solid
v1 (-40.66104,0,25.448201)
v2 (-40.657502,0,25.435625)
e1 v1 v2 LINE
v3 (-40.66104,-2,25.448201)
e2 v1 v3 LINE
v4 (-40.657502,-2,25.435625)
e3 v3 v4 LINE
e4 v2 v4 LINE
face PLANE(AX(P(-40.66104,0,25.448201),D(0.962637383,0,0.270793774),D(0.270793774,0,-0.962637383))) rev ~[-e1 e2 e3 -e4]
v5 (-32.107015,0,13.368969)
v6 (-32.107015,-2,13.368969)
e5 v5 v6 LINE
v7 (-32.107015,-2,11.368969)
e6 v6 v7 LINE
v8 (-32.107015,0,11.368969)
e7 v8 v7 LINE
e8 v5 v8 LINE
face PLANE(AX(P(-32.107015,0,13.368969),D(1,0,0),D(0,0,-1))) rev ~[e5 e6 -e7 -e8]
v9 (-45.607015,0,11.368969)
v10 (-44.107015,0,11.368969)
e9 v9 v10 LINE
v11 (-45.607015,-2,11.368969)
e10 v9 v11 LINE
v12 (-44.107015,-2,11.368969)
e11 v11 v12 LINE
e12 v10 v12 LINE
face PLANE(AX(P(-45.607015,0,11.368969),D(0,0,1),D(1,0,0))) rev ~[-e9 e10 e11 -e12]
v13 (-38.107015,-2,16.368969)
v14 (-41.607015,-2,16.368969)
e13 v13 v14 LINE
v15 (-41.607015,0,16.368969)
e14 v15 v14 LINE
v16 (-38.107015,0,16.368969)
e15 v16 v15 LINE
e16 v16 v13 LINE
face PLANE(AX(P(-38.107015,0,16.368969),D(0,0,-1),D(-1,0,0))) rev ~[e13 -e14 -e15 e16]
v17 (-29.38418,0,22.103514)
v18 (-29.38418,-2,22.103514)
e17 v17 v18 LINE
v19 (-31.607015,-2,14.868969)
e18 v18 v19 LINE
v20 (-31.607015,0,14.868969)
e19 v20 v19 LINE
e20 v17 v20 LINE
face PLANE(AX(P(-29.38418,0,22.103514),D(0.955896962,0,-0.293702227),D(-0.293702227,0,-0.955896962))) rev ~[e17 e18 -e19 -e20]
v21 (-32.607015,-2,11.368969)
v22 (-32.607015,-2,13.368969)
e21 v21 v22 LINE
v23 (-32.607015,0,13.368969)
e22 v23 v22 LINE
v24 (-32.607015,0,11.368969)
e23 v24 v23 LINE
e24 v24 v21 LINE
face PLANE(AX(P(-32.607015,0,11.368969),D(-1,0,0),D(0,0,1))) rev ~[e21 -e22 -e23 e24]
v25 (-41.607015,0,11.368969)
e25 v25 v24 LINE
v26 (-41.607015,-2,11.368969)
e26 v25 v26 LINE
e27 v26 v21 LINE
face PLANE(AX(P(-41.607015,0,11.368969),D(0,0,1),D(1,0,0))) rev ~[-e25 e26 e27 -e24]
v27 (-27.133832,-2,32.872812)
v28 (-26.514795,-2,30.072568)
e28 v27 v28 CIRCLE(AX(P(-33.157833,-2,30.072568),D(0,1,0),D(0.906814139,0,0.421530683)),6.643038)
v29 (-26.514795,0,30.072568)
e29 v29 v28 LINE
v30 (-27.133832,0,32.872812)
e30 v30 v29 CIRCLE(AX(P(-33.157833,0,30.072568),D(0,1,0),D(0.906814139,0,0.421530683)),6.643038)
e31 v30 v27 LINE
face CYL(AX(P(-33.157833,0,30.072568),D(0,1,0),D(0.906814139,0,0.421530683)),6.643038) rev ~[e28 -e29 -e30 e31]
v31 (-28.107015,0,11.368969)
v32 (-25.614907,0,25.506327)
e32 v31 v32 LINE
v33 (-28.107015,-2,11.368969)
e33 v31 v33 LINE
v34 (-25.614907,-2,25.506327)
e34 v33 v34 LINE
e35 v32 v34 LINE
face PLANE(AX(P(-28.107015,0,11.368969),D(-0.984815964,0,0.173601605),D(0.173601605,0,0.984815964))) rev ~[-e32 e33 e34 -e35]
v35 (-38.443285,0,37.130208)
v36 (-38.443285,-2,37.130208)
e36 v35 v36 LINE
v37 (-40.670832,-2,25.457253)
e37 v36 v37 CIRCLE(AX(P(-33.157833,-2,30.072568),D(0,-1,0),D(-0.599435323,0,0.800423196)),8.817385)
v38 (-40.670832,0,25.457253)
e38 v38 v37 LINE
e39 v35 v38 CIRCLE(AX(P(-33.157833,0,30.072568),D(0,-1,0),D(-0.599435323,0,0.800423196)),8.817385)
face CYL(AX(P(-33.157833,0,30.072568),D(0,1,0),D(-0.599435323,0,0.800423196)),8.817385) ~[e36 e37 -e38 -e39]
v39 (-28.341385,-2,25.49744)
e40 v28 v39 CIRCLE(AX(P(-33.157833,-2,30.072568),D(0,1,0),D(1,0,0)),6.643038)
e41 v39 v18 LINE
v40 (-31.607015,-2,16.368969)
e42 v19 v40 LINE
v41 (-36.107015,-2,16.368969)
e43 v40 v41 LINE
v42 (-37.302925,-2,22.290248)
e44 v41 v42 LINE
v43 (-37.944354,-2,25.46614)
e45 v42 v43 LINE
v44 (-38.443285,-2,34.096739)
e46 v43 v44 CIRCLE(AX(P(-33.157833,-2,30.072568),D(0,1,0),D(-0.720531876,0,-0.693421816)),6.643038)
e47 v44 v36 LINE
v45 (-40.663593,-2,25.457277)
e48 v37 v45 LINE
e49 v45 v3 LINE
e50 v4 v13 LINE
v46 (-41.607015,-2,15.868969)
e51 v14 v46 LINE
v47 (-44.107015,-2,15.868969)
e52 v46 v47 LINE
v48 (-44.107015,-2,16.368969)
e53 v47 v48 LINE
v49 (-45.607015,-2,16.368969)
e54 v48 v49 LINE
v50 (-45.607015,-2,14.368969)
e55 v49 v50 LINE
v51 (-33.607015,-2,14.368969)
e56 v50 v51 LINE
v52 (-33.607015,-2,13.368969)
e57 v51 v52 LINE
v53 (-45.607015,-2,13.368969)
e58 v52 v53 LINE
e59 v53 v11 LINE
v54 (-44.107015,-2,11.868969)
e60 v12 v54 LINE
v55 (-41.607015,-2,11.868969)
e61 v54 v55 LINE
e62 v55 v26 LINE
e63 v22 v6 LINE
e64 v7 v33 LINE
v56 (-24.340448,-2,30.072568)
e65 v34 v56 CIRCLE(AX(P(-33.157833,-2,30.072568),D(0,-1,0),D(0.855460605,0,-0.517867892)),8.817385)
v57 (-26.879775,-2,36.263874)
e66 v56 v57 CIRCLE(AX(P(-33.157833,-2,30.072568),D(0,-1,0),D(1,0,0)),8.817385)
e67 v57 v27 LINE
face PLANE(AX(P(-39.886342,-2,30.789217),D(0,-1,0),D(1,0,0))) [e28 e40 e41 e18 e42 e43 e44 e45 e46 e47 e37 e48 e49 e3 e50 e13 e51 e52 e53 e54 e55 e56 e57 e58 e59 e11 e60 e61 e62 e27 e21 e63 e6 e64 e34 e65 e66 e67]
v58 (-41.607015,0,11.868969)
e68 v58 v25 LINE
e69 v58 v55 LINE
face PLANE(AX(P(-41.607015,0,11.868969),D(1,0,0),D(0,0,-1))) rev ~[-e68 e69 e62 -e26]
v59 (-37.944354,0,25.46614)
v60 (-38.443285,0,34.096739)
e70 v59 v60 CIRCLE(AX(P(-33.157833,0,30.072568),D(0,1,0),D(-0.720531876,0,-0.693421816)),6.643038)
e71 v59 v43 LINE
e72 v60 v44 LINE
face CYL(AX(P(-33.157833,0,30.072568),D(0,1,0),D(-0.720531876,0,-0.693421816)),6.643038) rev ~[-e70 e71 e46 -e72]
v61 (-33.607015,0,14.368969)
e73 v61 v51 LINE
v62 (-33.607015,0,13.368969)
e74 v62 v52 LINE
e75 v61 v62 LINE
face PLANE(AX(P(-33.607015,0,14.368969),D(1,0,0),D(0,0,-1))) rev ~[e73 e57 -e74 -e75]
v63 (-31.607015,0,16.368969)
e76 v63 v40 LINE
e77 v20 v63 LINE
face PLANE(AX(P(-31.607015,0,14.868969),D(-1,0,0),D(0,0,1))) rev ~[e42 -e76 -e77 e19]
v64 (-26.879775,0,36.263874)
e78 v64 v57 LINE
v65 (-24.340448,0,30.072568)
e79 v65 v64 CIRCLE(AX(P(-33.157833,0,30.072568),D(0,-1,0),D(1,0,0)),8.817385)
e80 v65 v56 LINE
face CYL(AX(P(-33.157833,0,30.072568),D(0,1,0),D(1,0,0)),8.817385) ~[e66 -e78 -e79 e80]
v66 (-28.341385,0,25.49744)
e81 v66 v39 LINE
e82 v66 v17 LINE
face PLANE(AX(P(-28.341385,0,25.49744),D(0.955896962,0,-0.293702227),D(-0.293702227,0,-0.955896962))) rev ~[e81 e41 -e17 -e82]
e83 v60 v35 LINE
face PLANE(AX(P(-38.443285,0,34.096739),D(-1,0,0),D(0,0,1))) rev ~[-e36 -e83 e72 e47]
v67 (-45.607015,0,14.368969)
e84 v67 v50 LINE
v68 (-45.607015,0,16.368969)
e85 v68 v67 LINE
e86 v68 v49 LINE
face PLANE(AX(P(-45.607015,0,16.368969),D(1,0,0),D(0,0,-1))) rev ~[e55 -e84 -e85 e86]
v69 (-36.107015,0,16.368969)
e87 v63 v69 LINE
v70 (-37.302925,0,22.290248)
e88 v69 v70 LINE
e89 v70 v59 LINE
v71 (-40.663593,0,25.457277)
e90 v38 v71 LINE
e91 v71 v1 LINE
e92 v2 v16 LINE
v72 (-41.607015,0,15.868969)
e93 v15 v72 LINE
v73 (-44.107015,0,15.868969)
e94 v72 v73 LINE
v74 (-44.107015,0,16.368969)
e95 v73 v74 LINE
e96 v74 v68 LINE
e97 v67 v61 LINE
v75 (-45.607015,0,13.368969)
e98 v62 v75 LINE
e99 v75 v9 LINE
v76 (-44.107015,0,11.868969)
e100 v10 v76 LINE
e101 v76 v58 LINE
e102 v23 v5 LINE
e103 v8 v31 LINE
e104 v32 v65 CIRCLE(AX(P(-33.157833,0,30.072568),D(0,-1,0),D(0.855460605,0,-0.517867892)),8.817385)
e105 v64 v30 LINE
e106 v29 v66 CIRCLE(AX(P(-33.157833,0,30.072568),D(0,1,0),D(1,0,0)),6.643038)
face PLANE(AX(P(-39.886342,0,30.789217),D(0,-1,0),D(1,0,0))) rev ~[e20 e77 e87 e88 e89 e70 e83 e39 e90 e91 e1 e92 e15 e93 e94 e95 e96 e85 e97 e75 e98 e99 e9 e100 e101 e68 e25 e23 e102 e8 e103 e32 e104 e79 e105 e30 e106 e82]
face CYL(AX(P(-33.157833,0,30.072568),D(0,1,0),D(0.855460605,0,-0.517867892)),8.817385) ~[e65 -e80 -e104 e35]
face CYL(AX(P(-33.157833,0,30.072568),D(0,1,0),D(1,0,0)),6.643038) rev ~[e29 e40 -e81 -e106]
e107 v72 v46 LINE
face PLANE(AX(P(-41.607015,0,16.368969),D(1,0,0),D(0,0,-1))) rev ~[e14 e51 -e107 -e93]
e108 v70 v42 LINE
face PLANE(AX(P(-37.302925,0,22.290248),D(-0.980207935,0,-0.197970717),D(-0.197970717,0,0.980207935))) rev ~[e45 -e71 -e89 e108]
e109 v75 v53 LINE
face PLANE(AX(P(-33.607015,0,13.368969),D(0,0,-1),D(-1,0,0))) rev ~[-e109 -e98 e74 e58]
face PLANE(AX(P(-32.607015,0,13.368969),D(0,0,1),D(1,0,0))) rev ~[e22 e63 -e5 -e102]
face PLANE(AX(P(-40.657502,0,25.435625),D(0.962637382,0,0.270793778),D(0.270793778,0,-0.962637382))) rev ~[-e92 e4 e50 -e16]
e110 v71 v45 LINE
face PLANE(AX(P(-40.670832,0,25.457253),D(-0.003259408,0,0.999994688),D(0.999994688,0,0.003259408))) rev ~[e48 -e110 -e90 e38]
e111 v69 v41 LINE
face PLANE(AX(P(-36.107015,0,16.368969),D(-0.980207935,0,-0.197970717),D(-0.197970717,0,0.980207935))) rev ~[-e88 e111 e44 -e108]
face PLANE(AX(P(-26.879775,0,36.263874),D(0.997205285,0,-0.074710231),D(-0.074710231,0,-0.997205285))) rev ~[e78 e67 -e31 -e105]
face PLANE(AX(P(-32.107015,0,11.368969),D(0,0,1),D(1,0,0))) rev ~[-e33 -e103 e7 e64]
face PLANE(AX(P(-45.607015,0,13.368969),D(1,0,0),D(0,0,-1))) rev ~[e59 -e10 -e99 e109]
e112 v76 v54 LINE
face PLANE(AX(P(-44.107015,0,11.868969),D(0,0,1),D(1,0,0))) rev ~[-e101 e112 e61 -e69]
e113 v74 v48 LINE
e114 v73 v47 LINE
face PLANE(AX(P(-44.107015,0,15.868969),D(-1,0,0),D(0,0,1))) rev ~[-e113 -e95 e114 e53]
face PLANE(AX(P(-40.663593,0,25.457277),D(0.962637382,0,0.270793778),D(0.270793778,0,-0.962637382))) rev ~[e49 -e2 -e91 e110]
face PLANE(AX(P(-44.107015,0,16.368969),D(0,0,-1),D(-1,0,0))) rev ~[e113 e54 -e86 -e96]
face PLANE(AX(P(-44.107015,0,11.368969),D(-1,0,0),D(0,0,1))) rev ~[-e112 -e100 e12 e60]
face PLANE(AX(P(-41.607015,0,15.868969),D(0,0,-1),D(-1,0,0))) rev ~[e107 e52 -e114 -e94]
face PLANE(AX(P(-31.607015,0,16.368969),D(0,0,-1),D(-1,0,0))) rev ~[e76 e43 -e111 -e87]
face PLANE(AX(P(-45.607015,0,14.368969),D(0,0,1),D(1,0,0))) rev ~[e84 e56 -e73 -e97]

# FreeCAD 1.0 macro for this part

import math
import FreeCAD as App
import Part
import Sketcher
from FreeCAD import Vector
Q = App.Units.Quantity

doc = App.newDocument("Part")
body = doc.addObject("PartDesign::Body", "Body")

sketch1 = body.newObject("Sketcher::SketchObject", "Sketch")
sketch1.AttachmentSupport = (doc.getObject("XZ_Plane"), [""])
sketch1.MapMode = "FlatFace"
sketch1.addGeometry(Part.ArcOfCircle(Part.Circle(Vector(-33.157833, 30.072568, 0), Vector(0, 0, 1), 8.817385), math.radians(126.829466), math.radians(211.562844)), False)
sketch1.addGeometry(Part.LineSegment(Vector(-40.670832, 25.457253, 0), Vector(-40.663593, 25.457277, 0)), False)
sketch1.addGeometry(Part.LineSegment(Vector(-40.663593, 25.457277, 0), Vector(-40.66104, 25.448201, 0)), False)
sketch1.addGeometry(Part.LineSegment(Vector(-40.66104, 25.448201, 0), Vector(-40.657502, 25.435625, 0)), False)
sketch1.addGeometry(Part.LineSegment(Vector(-40.657502, 25.435625, 0), Vector(-38.107015, 16.368969, 0)), False)
sketch1.addGeometry(Part.LineSegment(Vector(-38.107015, 16.368969, 0), Vector(-41.607015, 16.368969, 0)), False)
sketch1.addGeometry(Part.LineSegment(Vector(-41.607015, 16.368969, 0), Vector(-41.607015, 15.868969, 0)), False)
sketch1.addGeometry(Part.LineSegment(Vector(-41.607015, 15.868969, 0), Vector(-44.107015, 15.868969, 0)), False)
sketch1.addGeometry(Part.LineSegment(Vector(-44.107015, 15.868969, 0), Vector(-44.107015, 16.368969, 0)), False)
sketch1.addGeometry(Part.LineSegment(Vector(-44.107015, 16.368969, 0), Vector(-45.607015, 16.368969, 0)), False)
sketch1.addGeometry(Part.LineSegment(Vector(-45.607015, 16.368969, 0), Vector(-45.607015, 14.368969, 0)), False)
sketch1.addGeometry(Part.LineSegment(Vector(-45.607015, 14.368969, 0), Vector(-33.607015, 14.368969, 0)), False)
sketch1.addGeometry(Part.LineSegment(Vector(-33.607015, 14.368969, 0), Vector(-33.607015, 13.368969, 0)), False)
sketch1.addGeometry(Part.LineSegment(Vector(-33.607015, 13.368969, 0), Vector(-45.607015, 13.368969, 0)), False)
sketch1.addGeometry(Part.LineSegment(Vector(-45.607015, 13.368969, 0), Vector(-45.607015, 11.368969, 0)), False)
sketch1.addGeometry(Part.LineSegment(Vector(-45.607015, 11.368969, 0), Vector(-44.107015, 11.368969, 0)), False)
sketch1.addGeometry(Part.LineSegment(Vector(-44.107015, 11.368969, 0), Vector(-44.107015, 11.868969, 0)), False)
sketch1.addGeometry(Part.LineSegment(Vector(-44.107015, 11.868969, 0), Vector(-41.607015, 11.868969, 0)), False)
sketch1.addGeometry(Part.LineSegment(Vector(-41.607015, 11.868969, 0), Vector(-41.607015, 11.368969, 0)), False)
sketch1.addGeometry(Part.LineSegment(Vector(-41.607015, 11.368969, 0), Vector(-32.607015, 11.368969, 0)), False)
sketch1.addGeometry(Part.LineSegment(Vector(-32.607015, 11.368969, 0), Vector(-32.607015, 13.368969, 0)), False)
sketch1.addGeometry(Part.LineSegment(Vector(-32.607015, 13.368969, 0), Vector(-32.107015, 13.368969, 0)), False)
sketch1.addGeometry(Part.LineSegment(Vector(-32.107015, 13.368969, 0), Vector(-32.107015, 11.368969, 0)), False)
sketch1.addGeometry(Part.LineSegment(Vector(-32.107015, 11.368969, 0), Vector(-28.107015, 11.368969, 0)), False)
sketch1.addGeometry(Part.LineSegment(Vector(-28.107015, 11.368969, 0), Vector(-25.614907, 25.506327, 0)), False)
sketch1.addGeometry(Part.ArcOfCircle(Part.Circle(Vector(-33.157833, 30.072568, 0), Vector(0, 0, 1), 8.817385), math.radians(-31.189342), math.radians(0)), False)
sketch1.addGeometry(Part.ArcOfCircle(Part.Circle(Vector(-33.157833, 30.072568, 0), Vector(0, 0, 1), 8.817385), math.radians(0), math.radians(44.601388)), False)
sketch1.addGeometry(Part.LineSegment(Vector(-26.879775, 36.263874, 0), Vector(-27.133832, 32.872812, 0)), False)
sketch1.addGeometry(Part.ArcOfCircle(Part.Circle(Vector(-33.157833, 30.072568, 0), Vector(0, 0, 1), 6.643038), math.radians(0), math.radians(24.931264)), False)
sketch1.addGeometry(Part.ArcOfCircle(Part.Circle(Vector(-33.157833, 30.072568, 0), Vector(0, 0, 1), 6.643038), math.radians(-43.528088), math.radians(0)), False)
sketch1.addGeometry(Part.LineSegment(Vector(-28.341385, 25.49744, 0), Vector(-29.38418, 22.103514, 0)), False)
sketch1.addGeometry(Part.LineSegment(Vector(-29.38418, 22.103514, 0), Vector(-31.607015, 14.868969, 0)), False)
sketch1.addGeometry(Part.LineSegment(Vector(-31.607015, 14.868969, 0), Vector(-31.607015, 16.368969, 0)), False)
sketch1.addGeometry(Part.LineSegment(Vector(-31.607015, 16.368969, 0), Vector(-36.107015, 16.368969, 0)), False)
sketch1.addGeometry(Part.LineSegment(Vector(-36.107015, 16.368969, 0), Vector(-37.302925, 22.290248, 0)), False)
sketch1.addGeometry(Part.LineSegment(Vector(-37.302925, 22.290248, 0), Vector(-37.944354, 25.46614, 0)), False)
sketch1.addGeometry(Part.ArcOfCircle(Part.Circle(Vector(-33.157833, 30.072568, 0), Vector(0, 0, 1), 6.643038), math.radians(142.715537), math.radians(223.901589)), False)
sketch1.addGeometry(Part.LineSegment(Vector(-38.443285, 34.096739, 0), Vector(-38.443285, 37.130208, 0)), False)
sketch1.addConstraint(Sketcher.Constraint("Coincident", 0, 2, 1, 1))
sketch1.addConstraint(Sketcher.Constraint("Coincident", 1, 2, 2, 1))
sketch1.addConstraint(Sketcher.Constraint("Coincident", 2, 2, 3, 1))
sketch1.addConstraint(Sketcher.Constraint("Coincident", 3, 2, 4, 1))
sketch1.addConstraint(Sketcher.Constraint("Coincident", 4, 2, 5, 1))
sketch1.addConstraint(Sketcher.Constraint("Coincident", 5, 2, 6, 1))
sketch1.addConstraint(Sketcher.Constraint("Coincident", 6, 2, 7, 1))
sketch1.addConstraint(Sketcher.Constraint("Coincident", 7, 2, 8, 1))
sketch1.addConstraint(Sketcher.Constraint("Coincident", 8, 2, 9, 1))
sketch1.addConstraint(Sketcher.Constraint("Coincident", 9, 2, 10, 1))
sketch1.addConstraint(Sketcher.Constraint("Coincident", 10, 2, 11, 1))
sketch1.addConstraint(Sketcher.Constraint("Coincident", 11, 2, 12, 1))
sketch1.addConstraint(Sketcher.Constraint("Coincident", 12, 2, 13, 1))
sketch1.addConstraint(Sketcher.Constraint("Coincident", 13, 2, 14, 1))
sketch1.addConstraint(Sketcher.Constraint("Coincident", 14, 2, 15, 1))
sketch1.addConstraint(Sketcher.Constraint("Coincident", 15, 2, 16, 1))
sketch1.addConstraint(Sketcher.Constraint("Coincident", 16, 2, 17, 1))
sketch1.addConstraint(Sketcher.Constraint("Coincident", 17, 2, 18, 1))
sketch1.addConstraint(Sketcher.Constraint("Coincident", 18, 2, 19, 1))
sketch1.addConstraint(Sketcher.Constraint("Coincident", 19, 2, 20, 1))
sketch1.addConstraint(Sketcher.Constraint("Coincident", 20, 2, 21, 1))
sketch1.addConstraint(Sketcher.Constraint("Coincident", 21, 2, 22, 1))
sketch1.addConstraint(Sketcher.Constraint("Coincident", 22, 2, 23, 1))
sketch1.addConstraint(Sketcher.Constraint("Coincident", 23, 2, 24, 1))
sketch1.addConstraint(Sketcher.Constraint("Coincident", 24, 2, 25, 1))
sketch1.addConstraint(Sketcher.Constraint("Tangent", 25, 2, 26, 1))
sketch1.addConstraint(Sketcher.Constraint("Coincident", 26, 2, 27, 1))
sketch1.addConstraint(Sketcher.Constraint("Coincident", 27, 2, 28, 2))
sketch1.addConstraint(Sketcher.Constraint("Tangent", 28, 1, 29, 2))
sketch1.addConstraint(Sketcher.Constraint("Coincident", 29, 1, 30, 1))
sketch1.addConstraint(Sketcher.Constraint("Coincident", 30, 2, 31, 1))
sketch1.addConstraint(Sketcher.Constraint("Coincident", 31, 2, 32, 1))
sketch1.addConstraint(Sketcher.Constraint("Coincident", 32, 2, 33, 1))
sketch1.addConstraint(Sketcher.Constraint("Coincident", 33, 2, 34, 1))
sketch1.addConstraint(Sketcher.Constraint("Coincident", 34, 2, 35, 1))
sketch1.addConstraint(Sketcher.Constraint("Coincident", 35, 2, 36, 2))
sketch1.addConstraint(Sketcher.Constraint("Coincident", 36, 1, 37, 1))
sketch1.addConstraint(Sketcher.Constraint("Coincident", 37, 2, 0, 1))
sketch1.addConstraint(Sketcher.Constraint("Horizontal", 5))
sketch1.addConstraint(Sketcher.Constraint("Vertical", 6))
sketch1.addConstraint(Sketcher.Constraint("Horizontal", 7))
sketch1.addConstraint(Sketcher.Constraint("Vertical", 8))
sketch1.addConstraint(Sketcher.Constraint("Horizontal", 9))
sketch1.addConstraint(Sketcher.Constraint("Vertical", 10))
sketch1.addConstraint(Sketcher.Constraint("Horizontal", 11))
sketch1.addConstraint(Sketcher.Constraint("Vertical", 12))
sketch1.addConstraint(Sketcher.Constraint("Horizontal", 13))
sketch1.addConstraint(Sketcher.Constraint("Vertical", 14))
sketch1.addConstraint(Sketcher.Constraint("Horizontal", 15))
sketch1.addConstraint(Sketcher.Constraint("Vertical", 16))
sketch1.addConstraint(Sketcher.Constraint("Horizontal", 17))
sketch1.addConstraint(Sketcher.Constraint("Vertical", 18))
sketch1.addConstraint(Sketcher.Constraint("Horizontal", 19))
sketch1.addConstraint(Sketcher.Constraint("Vertical", 20))
sketch1.addConstraint(Sketcher.Constraint("Horizontal", 21))
sketch1.addConstraint(Sketcher.Constraint("Vertical", 22))
sketch1.addConstraint(Sketcher.Constraint("Horizontal", 23))
sketch1.addConstraint(Sketcher.Constraint("Vertical", 32))
sketch1.addConstraint(Sketcher.Constraint("Horizontal", 33))
sketch1.addConstraint(Sketcher.Constraint("Vertical", 37))
sketch1.addConstraint(Sketcher.Constraint("Coincident", 25, 3, 0, 3))
sketch1.addConstraint(Sketcher.Constraint("Coincident", 28, 3, 0, 3))
sketch1.addConstraint(Sketcher.Constraint("Coincident", 36, 3, 0, 3))
sketch1.addConstraint(Sketcher.Constraint("Equal", 0, 25))
sketch1.addConstraint(Sketcher.Constraint("Equal", 25, 26))
sketch1.addConstraint(Sketcher.Constraint("Equal", 28, 29))
sketch1.addConstraint(Sketcher.Constraint("Equal", 29, 36))
sketch1.addConstraint(Sketcher.Constraint("Parallel", 2, 3))
sketch1.addConstraint(Sketcher.Constraint("Parallel", 3, 4))
sketch1.addConstraint(Sketcher.Constraint("Parallel", 30, 31))
sketch1.addConstraint(Sketcher.Constraint("Parallel", 34, 35))
sketch1.addConstraint(Sketcher.Constraint("Horizontal", 5, 2, 8, 2))
sketch1.addConstraint(Sketcher.Constraint("Horizontal", 15, 2, 18, 2))
sketch1.addConstraint(Sketcher.Constraint("Horizontal", 13, 2, 20, 2))
sketch1.addConstraint(Sketcher.Constraint("Horizontal", 19, 2, 22, 2))
sketch1.addConstraint(Sketcher.Constraint("Horizontal", 36, 3, 25, 2))
sketch1.addConstraint(Sketcher.Constraint("Horizontal", 25, 2, 28, 1))
sketch1.addConstraint(Sketcher.Constraint("Horizontal", 9, 2, 32, 2))
sketch1.addConstraint(Sketcher.Constraint("Vertical", 10, 2, 13, 2))
sketch1.addConstraint(Sketcher.Constraint("Vertical", 8, 2, 15, 2))
sketch1.addConstraint(Sketcher.Constraint("Vertical", 6, 2, 17, 2))
sketch1.addConstraint(Sketcher.Constraint("Equal", 21, 6))
sketch1.addConstraint(Sketcher.Constraint("Equal", 10, 14))
sketch1.addConstraint(Sketcher.Constraint("Equal", 8, 16))
sketch1.addConstraint(Sketcher.Constraint("Equal", 15, 32))
sketch1.addConstraint(Sketcher.Constraint("DistanceX", 11, 1, 11, 2, Q("12 mm")))
sketch1.addConstraint(Sketcher.Constraint("DistanceX", 19, 1, 19, 2, Q("9 mm")))
sketch1.addConstraint(Sketcher.Constraint("DistanceX", 23, 1, 23, 2, Q("4 mm")))
sketch1.addConstraint(Sketcher.Constraint("DistanceY", 10, 2, 10, 1, Q("2 mm")))
sketch1.addConstraint(Sketcher.Constraint("DistanceY", 12, 2, 12, 1, Q("1 mm")))
sketch1.addConstraint(Sketcher.Constraint("DistanceX", 5, 2, 5, 1, Q("3.5 mm")))
sketch1.addConstraint(Sketcher.Constraint("DistanceX", 7, 2, 7, 1, Q("2.5 mm")))
sketch1.addConstraint(Sketcher.Constraint("DistanceX", 9, 2, 9, 1, Q("1.5 mm")))
sketch1.addConstraint(Sketcher.Constraint("DistanceX", 21, 1, 21, 2, Q("0.5 mm")))
sketch1.addConstraint(Sketcher.Constraint("DistanceX", 33, 2, 33, 1, Q("4.5 mm")))
sketch1.addConstraint(Sketcher.Constraint("DistanceX", 20, 2, 31, 2, Q("1 mm")))
sketch1.addConstraint(Sketcher.Constraint("Radius", 28, Q("6.643038 mm")))
sketch1.addConstraint(Sketcher.Constraint("Radius", 0, Q("8.817385 mm")))
sketch1.addConstraint(Sketcher.Constraint("DistanceX", 0, 2, 28, 3, Q("7.512999 mm")))
sketch1.addConstraint(Sketcher.Constraint("DistanceX", 36, 3, 27, 2, Q("6.024001 mm")))
sketch1.addConstraint(Sketcher.Constraint("DistanceY", 37, 1, 37, 2, Q("3.033469 mm")))
sketch1.addConstraint(Sketcher.Constraint("DistanceY", -1, 1, 2, 2, Q("25.448201 mm")))
sketch1.addConstraint(Sketcher.Constraint("DistanceY", 4, 2, 28, 3, Q("13.703599 mm")))
sketch1.addConstraint(Sketcher.Constraint("Distance", 1, Q("0.007239 mm")))
sketch1.addConstraint(Sketcher.Constraint("Distance", 4, Q("9.418558 mm")))
sketch1.addConstraint(Sketcher.Constraint("Distance", 24, Q("14.355331 mm")))
sketch1.addConstraint(Sketcher.Constraint("Distance", 31, Q("7.568332 mm")))
sketch1.addConstraint(Sketcher.Constraint("Distance", 34, Q("6.040841 mm")))
sketch1.addConstraint(Sketcher.Constraint("Distance", 35, Q("3.240018 mm")))
sketch1.addConstraint(Sketcher.Constraint("DistanceX", 2, 2, -1, 1, Q("40.66104 mm")))
sketch1.addConstraint(Sketcher.Constraint("DistanceY", -1, 1, 4, 2, Q("16.368969 mm")))
sketch1.addConstraint(Sketcher.Constraint("DistanceX", 27, 2, -1, 1, Q("27.133832 mm")))
sketch1.addConstraint(Sketcher.Constraint("DistanceY", -1, 1, 29, 1, Q("25.49744 mm")))
sketch1.addConstraint(Sketcher.Constraint("DistanceX", 30, 2, -1, 1, Q("29.38418 mm")))
sketch1.addConstraint(Sketcher.Constraint("DistanceX", 36, 3, 26, 2, Q("6.278058 mm")))
pad1 = body.newObject("PartDesign::Pad", "Pad")
pad1.Profile = sketch1
pad1.Length = 2

doc.recompute()
